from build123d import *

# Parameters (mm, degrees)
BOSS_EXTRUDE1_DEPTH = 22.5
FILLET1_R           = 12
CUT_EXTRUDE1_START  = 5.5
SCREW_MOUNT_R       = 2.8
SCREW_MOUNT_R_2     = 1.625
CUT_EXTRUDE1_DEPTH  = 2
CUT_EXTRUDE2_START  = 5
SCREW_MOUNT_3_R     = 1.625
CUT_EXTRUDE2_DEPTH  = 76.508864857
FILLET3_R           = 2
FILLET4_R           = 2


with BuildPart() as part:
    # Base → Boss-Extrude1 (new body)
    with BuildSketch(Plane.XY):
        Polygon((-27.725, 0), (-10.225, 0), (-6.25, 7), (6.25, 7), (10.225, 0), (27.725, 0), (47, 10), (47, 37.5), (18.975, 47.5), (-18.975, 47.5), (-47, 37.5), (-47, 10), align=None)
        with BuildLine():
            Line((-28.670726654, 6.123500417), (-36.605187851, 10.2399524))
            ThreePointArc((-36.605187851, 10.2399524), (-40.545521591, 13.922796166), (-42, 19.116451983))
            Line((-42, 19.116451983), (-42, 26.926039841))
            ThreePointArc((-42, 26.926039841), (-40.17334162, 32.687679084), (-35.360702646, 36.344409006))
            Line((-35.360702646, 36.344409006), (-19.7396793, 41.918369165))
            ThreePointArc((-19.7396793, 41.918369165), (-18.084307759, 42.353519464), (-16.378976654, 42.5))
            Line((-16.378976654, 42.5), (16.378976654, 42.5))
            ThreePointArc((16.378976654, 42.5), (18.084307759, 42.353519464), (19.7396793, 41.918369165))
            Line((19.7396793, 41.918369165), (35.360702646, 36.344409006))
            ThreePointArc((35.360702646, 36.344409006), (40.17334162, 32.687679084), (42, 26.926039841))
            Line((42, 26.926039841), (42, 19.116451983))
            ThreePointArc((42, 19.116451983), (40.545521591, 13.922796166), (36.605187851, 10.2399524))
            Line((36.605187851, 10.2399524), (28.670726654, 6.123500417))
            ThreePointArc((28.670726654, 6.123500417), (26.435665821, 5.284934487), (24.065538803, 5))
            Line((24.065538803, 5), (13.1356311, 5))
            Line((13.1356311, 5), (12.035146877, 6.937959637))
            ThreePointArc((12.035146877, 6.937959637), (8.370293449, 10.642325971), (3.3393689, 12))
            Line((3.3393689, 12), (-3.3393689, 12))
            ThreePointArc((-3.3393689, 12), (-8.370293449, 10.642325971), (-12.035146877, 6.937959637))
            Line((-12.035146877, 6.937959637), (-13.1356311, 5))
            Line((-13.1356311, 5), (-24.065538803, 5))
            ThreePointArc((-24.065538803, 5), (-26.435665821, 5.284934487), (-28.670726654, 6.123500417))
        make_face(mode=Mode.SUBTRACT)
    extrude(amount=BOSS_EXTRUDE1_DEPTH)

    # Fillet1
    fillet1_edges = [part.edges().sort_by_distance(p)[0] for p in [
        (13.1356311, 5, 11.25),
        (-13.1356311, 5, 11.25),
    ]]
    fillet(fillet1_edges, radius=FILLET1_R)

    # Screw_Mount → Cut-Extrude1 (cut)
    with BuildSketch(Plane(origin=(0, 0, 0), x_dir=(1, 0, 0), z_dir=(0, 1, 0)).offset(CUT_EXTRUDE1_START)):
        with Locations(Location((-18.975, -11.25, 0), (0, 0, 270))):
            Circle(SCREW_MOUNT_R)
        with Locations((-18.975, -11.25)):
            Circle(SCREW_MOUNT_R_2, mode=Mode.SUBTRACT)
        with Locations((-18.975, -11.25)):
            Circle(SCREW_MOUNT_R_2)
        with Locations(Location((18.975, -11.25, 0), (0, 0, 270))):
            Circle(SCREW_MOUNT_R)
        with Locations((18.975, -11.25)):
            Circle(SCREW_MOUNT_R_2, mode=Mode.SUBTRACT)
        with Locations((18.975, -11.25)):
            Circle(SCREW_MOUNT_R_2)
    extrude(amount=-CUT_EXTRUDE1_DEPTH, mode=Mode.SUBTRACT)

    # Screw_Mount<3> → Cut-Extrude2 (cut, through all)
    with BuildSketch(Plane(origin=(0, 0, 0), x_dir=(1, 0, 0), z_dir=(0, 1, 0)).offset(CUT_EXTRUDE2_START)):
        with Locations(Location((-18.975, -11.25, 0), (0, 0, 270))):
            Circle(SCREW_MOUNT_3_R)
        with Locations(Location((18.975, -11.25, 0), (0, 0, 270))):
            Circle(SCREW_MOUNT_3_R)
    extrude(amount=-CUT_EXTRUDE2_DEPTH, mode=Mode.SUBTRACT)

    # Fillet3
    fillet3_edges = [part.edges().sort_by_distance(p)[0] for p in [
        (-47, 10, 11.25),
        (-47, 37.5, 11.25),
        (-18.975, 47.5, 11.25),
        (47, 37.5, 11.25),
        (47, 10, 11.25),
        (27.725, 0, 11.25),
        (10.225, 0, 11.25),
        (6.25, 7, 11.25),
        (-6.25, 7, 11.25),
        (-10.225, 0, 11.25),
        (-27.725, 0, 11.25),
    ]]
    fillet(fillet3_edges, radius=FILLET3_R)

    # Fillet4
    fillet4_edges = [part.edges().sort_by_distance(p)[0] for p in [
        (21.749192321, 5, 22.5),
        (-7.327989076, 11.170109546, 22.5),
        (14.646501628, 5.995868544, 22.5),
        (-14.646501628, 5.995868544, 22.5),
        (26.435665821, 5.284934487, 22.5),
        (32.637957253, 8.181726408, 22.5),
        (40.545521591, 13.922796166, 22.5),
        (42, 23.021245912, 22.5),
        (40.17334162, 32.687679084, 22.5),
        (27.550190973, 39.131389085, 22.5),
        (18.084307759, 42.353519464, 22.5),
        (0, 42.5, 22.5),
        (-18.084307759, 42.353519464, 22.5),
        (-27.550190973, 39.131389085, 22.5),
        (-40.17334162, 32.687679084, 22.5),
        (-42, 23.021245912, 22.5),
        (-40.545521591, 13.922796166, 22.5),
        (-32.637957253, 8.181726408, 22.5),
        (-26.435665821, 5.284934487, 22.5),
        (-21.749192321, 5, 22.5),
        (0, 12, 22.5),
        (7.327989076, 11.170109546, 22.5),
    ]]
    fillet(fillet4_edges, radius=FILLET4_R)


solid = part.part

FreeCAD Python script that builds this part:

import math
import FreeCAD as App
import Part
import Sketcher


def edges_at(feature, points):
    """Names of the edges that pass closest to the given points."""
    edges = feature.Shape.Edges
    near = lambda p: min(range(len(edges)), key=lambda i: edges[i].distToShape(Part.Vertex(*p))[0])
    return sorted({f"Edge{near(p) + 1}" for p in points})


def add_polygon(sketch, points):
    """Adds a closed chain of lines whose ends are joined by coincident constraints."""
    first, n = sketch.GeometryCount, len(points)
    for a, b in zip(points, points[1:] + points[:1]):
        sketch.addGeometry(Part.LineSegment(App.Vector(*a, 0), App.Vector(*b, 0)), False)
    for i in range(n):
        sketch.addConstraint(Sketcher.Constraint("Coincident", first + i, 2, first + (i + 1) % n, 1))

doc = App.newDocument("Part")
body = doc.addObject("PartDesign::Body", "Body")

# Sketch on XY plane
sketch1 = doc.addObject("Sketcher::SketchObject", "Sketch")
body.addObject(sketch1)
sketch1.AttachmentSupport = (doc.XY_Plane, [""])
sketch1.MapMode = "FlatFace"
add_polygon(sketch1, [(-27.7, 0), (-10.2, 0), (-6.2, 7), (6.2, 7), (10.2, 0), (27.7, 0), (47, 10), (47, 37.5), (19, 47.5), (-19, 47.5), (-47, 37.5), (-47, 10)])  # lines 0-11
sketch1.addGeometry(Part.ArcOfCircle(Part.Circle(App.Vector(-24.1, 15, 0), App.Vector(0, 0, 1), 10), math.radians(-117), math.radians(-90)), False)  # 12
sketch1.addGeometry(Part.LineSegment(App.Vector(-28.7, 6.1, 0), App.Vector(-36.6, 10.2, 0)), False)  # 13
sketch1.addGeometry(Part.ArcOfCircle(Part.Circle(App.Vector(-32, 19.1, 0), App.Vector(0, 0, 1), 10), math.radians(180), math.radians(243)), False)  # 14
sketch1.addGeometry(Part.LineSegment(App.Vector(-42, 19.1, 0), App.Vector(-42, 26.9, 0)), False)  # 15
sketch1.addGeometry(Part.ArcOfCircle(Part.Circle(App.Vector(-32, 26.9, 0), App.Vector(0, 0, 1), 10), math.radians(110), math.radians(180)), False)  # 16
sketch1.addGeometry(Part.LineSegment(App.Vector(-35.4, 36.3, 0), App.Vector(-19.7, 41.9, 0)), False)  # 17
sketch1.addGeometry(Part.ArcOfCircle(Part.Circle(App.Vector(-16.4, 32.5, 0), App.Vector(0, 0, 1), 10), math.radians(90), math.radians(109.64)), False)  # 18
sketch1.addGeometry(Part.LineSegment(App.Vector(-16.4, 42.5, 0), App.Vector(16.4, 42.5, 0)), False)  # 19
sketch1.addGeometry(Part.ArcOfCircle(Part.Circle(App.Vector(16.4, 32.5, 0), App.Vector(0, 0, 1), 10), math.radians(70.36), math.radians(90)), False)  # 20
sketch1.addGeometry(Part.LineSegment(App.Vector(19.7, 41.9, 0), App.Vector(35.4, 36.3, 0)), False)  # 21
sketch1.addGeometry(Part.ArcOfCircle(Part.Circle(App.Vector(32, 26.9, 0), App.Vector(0, 0, 1), 10), math.radians(0), math.radians(70)), False)  # 22
sketch1.addGeometry(Part.LineSegment(App.Vector(42, 26.9, 0), App.Vector(42, 19.1, 0)), False)  # 23
sketch1.addGeometry(Part.ArcOfCircle(Part.Circle(App.Vector(32, 19.1, 0), App.Vector(0, 0, 1), 10), math.radians(-63), math.radians(0)), False)  # 24
sketch1.addGeometry(Part.LineSegment(App.Vector(36.6, 10.2, 0), App.Vector(28.7, 6.1, 0)), False)  # 25
sketch1.addGeometry(Part.ArcOfCircle(Part.Circle(App.Vector(24.1, 15, 0), App.Vector(0, 0, 1), 10), math.radians(-90), math.radians(-63)), False)  # 26
sketch1.addGeometry(Part.LineSegment(App.Vector(24.1, 5, 0), App.Vector(13.1, 5, 0)), False)  # 27
sketch1.addGeometry(Part.LineSegment(App.Vector(13.1, 5, 0), App.Vector(12, 6.9, 0)), False)  # 28
sketch1.addGeometry(Part.ArcOfCircle(Part.Circle(App.Vector(3.3, 2, 0), App.Vector(0, 0, 1), 10), math.radians(30), math.radians(90)), False)  # 29
sketch1.addGeometry(Part.LineSegment(App.Vector(3.3, 12, 0), App.Vector(-3.3, 12, 0)), False)  # 30
sketch1.addGeometry(Part.ArcOfCircle(Part.Circle(App.Vector(-3.3, 2, 0), App.Vector(0, 0, 1), 10), math.radians(90), math.radians(150)), False)  # 31
sketch1.addGeometry(Part.LineSegment(App.Vector(-12, 6.9, 0), App.Vector(-13.1, 5, 0)), False)  # 32
sketch1.addGeometry(Part.LineSegment(App.Vector(-13.1, 5, 0), App.Vector(-24.1, 5, 0)), False)  # 33
sketch1.addConstraint([
    Sketcher.Constraint("Tangent", 12, 1, 13, 1),
    Sketcher.Constraint("Tangent", 13, 2, 14, 2),
    Sketcher.Constraint("Tangent", 14, 1, 15, 1),
    Sketcher.Constraint("Tangent", 15, 2, 16, 2),
    Sketcher.Constraint("Tangent", 16, 1, 17, 1),
    Sketcher.Constraint("Tangent", 17, 2, 18, 2),
    Sketcher.Constraint("Tangent", 18, 1, 19, 1),
    Sketcher.Constraint("Tangent", 19, 2, 20, 2),
    Sketcher.Constraint("Tangent", 20, 1, 21, 1),
    Sketcher.Constraint("Tangent", 21, 2, 22, 2),
    Sketcher.Constraint("Tangent", 22, 1, 23, 1),
    Sketcher.Constraint("Tangent", 23, 2, 24, 2),
    Sketcher.Constraint("Tangent", 24, 1, 25, 1),
    Sketcher.Constraint("Tangent", 25, 2, 26, 2),
    Sketcher.Constraint("Tangent", 26, 1, 27, 1),
    Sketcher.Constraint("Coincident", 27, 2, 28, 1),
    Sketcher.Constraint("Tangent", 28, 2, 29, 1),
    Sketcher.Constraint("Tangent", 29, 2, 30, 1),
    Sketcher.Constraint("Tangent", 30, 2, 31, 1),
    Sketcher.Constraint("Tangent", 31, 2, 32, 1),
    Sketcher.Constraint("Coincident", 32, 2, 33, 1),
    Sketcher.Constraint("Tangent", 33, 2, 12, 2),
    Sketcher.Constraint("Horizontal", 0),
    Sketcher.Constraint("Horizontal", 2),
    Sketcher.Constraint("Horizontal", 4),
    Sketcher.Constraint("Vertical", 6),
    Sketcher.Constraint("Horizontal", 8),
    Sketcher.Constraint("Vertical", 10),
    Sketcher.Constraint("Vertical", 15),
    Sketcher.Constraint("Horizontal", 19),
    Sketcher.Constraint("Vertical", 23),
    Sketcher.Constraint("Horizontal", 27),
    Sketcher.Constraint("Horizontal", 30),
    Sketcher.Constraint("Horizontal", 33),
    Sketcher.Constraint("Equal", 12, 14),
    Sketcher.Constraint("Equal", 14, 16),
    Sketcher.Constraint("Equal", 16, 18),
    Sketcher.Constraint("Equal", 18, 20),
    Sketcher.Constraint("Equal", 20, 22),
    Sketcher.Constraint("Equal", 22, 24),
    Sketcher.Constraint("Equal", 24, 26),
    Sketcher.Constraint("Equal", 26, 29),
    Sketcher.Constraint("Equal", 29, 31),
    Sketcher.Constraint("Symmetric", 0, 2, 3, 2, -1, 1),
    Sketcher.Constraint("Symmetric", 16, 3, 22, 3, -2),
    Sketcher.Constraint("Symmetric", 12, 3, 26, 3, -2),
    Sketcher.Constraint("Symmetric", 6, 2, 9, 2, -2),
    Sketcher.Constraint("Symmetric", 4, 2, 11, 2, -2),
    Sketcher.Constraint("Symmetric", 28, 2, 31, 2, -2),
    Sketcher.Constraint("Parallel", 11, 13),
    Sketcher.Constraint("Parallel", 9, 17),
    Sketcher.Constraint("Parallel", 7, 21),
    Sketcher.Constraint("Parallel", 5, 25),
    Sketcher.Constraint("Parallel", 3, 28),
    Sketcher.Constraint("Parallel", 1, 32),
    Sketcher.Constraint("Horizontal", 14, 3, 24, 3),
    Sketcher.Constraint("Horizontal", 17, 2, 20, 1),
    Sketcher.Constraint("Radius", 12, 10.0),
    Sketcher.Constraint("DistanceX", 0, 1, 0, 2, 17.5),
    Sketcher.Constraint("DistanceX", 2, 1, 2, 2, 12.5),
    Sketcher.Constraint("DistanceY", 6, 1, 6, 2, 27.5),
    Sketcher.Constraint("DistanceY", -1, 1, 12, 3, 15.0),
    Sketcher.Constraint("DistanceX", 14, 3, -1, 1, 32.0),
    Sketcher.Constraint("DistanceY", -1, 1, 29, 3, 2.0),
    Sketcher.Constraint("DistanceY", -1, 1, 1, 2, 7.0),
    Sketcher.Constraint("DistanceX", -1, 1, 5, 2, 47.0),
    Sketcher.Constraint("DistanceY", -1, 1, 5, 2, 10.0),
    Sketcher.Constraint("DistanceY", 20, 3, 6, 2, 5.0),
    Sketcher.Constraint("DistanceY", 20, 3, 7, 2, 15.0),
    Sketcher.Constraint("DistanceX", 8, 2, 8, 1, 37.95),
    Sketcher.Constraint("DistanceX", 0, 2, -1, 1, 10.225),
    Sketcher.Constraint("Distance", 17, 16.585699),
    Sketcher.Constraint("DistanceX", 27, 2, 27, 1, 10.929908),
    Sketcher.Constraint("DistanceX", 30, 2, 30, 1, 6.678738),
])
pad1 = doc.addObject("PartDesign::Pad", "Pad")
body.addObject(pad1)
pad1.Profile = sketch1
pad1.Length = 22.5
doc.recompute()

fillet = doc.addObject("PartDesign::Fillet", "Fillet")
body.addObject(fillet)
fillet.Base = (pad1, edges_at(pad1, [(13.136, 5, 11.25), (-13.136, 5, 11.25)]))
fillet.Radius = 12

# Sketch on XZ plane
sketch2 = doc.addObject("Sketcher::SketchObject", "Sketch001")
body.addObject(sketch2)
sketch2.AttachmentSupport = (doc.XZ_Plane, [""])
sketch2.MapMode = "FlatFace"
sketch2.AttachmentOffset = App.Placement(App.Vector(0, 0, -5.5), App.Rotation())
sketch2.addGeometry([
    Part.Circle(App.Vector(-19, 11.2, 0), App.Vector(0, 0, 1), 2.8),
    Part.Circle(App.Vector(19, 11.2, 0), App.Vector(0, 0, 1), 2.8),
], False)
sketch2.addConstraint([
    Sketcher.Constraint("Equal", 0, 1),
    Sketcher.Constraint("Symmetric", 0, 3, 1, 3, -2),
    Sketcher.Constraint("Diameter", 0, 5.6),
    Sketcher.Constraint("DistanceY", -1, 1, 0, 3, 11.25),
    Sketcher.Constraint("DistanceX", 0, 3, 1, 3, 37.95),
])
pocket1 = doc.addObject("PartDesign::Pocket", "Pocket")
body.addObject(pocket1)
pocket1.Profile = sketch2
pocket1.Length = 2
pocket1.Reversed = True

# Sketch on XZ plane
sketch3 = doc.addObject("Sketcher::SketchObject", "Sketch002")
body.addObject(sketch3)
sketch3.AttachmentSupport = (doc.XZ_Plane, [""])
sketch3.MapMode = "FlatFace"
sketch3.AttachmentOffset = App.Placement(App.Vector(0, 0, -5), App.Rotation())
sketch3.addGeometry([
    Part.Circle(App.Vector(-19, 11.2, 0), App.Vector(0, 0, 1), 1.6),
    Part.Circle(App.Vector(19, 11.2, 0), App.Vector(0, 0, 1), 1.6),
], False)
sketch3.addConstraint([
    Sketcher.Constraint("Equal", 0, 1),
    Sketcher.Constraint("Symmetric", 0, 3, 1, 3, -2),
    Sketcher.Constraint("Diameter", 0, 3.25),
    Sketcher.Constraint("DistanceY", -1, 1, 0, 3, 11.25),
    Sketcher.Constraint("DistanceX", 0, 3, 1, 3, 37.95),
])
pocket2 = doc.addObject("PartDesign::Pocket", "Pocket001")
body.addObject(pocket2)
pocket2.Profile = sketch3
pocket2.Type = "ThroughAll"
pocket2.Reversed = True
doc.recompute()

fillet2 = doc.addObject("PartDesign::Fillet", "Fillet001")
body.addObject(fillet2)
fillet2.Base = (pocket2, edges_at(pocket2, [
    (-47, 10, 11.25),
    (-47, 37.5, 11.25),
    (-18.975, 47.5, 11.25),
    (47, 37.5, 11.25),
    (47, 10, 11.25),
    (27.725, 0, 11.25),
    (10.225, 0, 11.25),
    (6.25, 7, 11.25),
    (-6.25, 7, 11.25),
    (-10.225, 0, 11.25),
    (-27.725, 0, 11.25),
]))
fillet2.Radius = 2
doc.recompute()

fillet3 = doc.addObject("PartDesign::Fillet", "Fillet002")
body.addObject(fillet3)
fillet3.Base = (fillet2, edges_at(fillet2, [
    (21.749, 5, 22.5),
    (-7.328, 11.17, 22.5),
    (14.647, 5.996, 22.5),
    (-14.647, 5.996, 22.5),
    (26.436, 5.285, 22.5),
    (32.638, 8.182, 22.5),
    (40.546, 13.923, 22.5),
    (42, 23.021, 22.5),
    (40.173, 32.688, 22.5),
    (27.55, 39.131, 22.5),
    (18.084, 42.354, 22.5),
    (0, 42.5, 22.5),
    (-18.084, 42.354, 22.5),
    (-27.55, 39.131, 22.5),
    (-40.173, 32.688, 22.5),
    (-42, 23.021, 22.5),
    (-40.546, 13.923, 22.5),
    (-32.638, 8.182, 22.5),
    (-26.436, 5.285, 22.5),
    (-21.749, 5, 22.5),
    (0, 12, 22.5),
    (7.328, 11.17, 22.5),
]))
fillet3.Radius = 2

doc.recompute()
